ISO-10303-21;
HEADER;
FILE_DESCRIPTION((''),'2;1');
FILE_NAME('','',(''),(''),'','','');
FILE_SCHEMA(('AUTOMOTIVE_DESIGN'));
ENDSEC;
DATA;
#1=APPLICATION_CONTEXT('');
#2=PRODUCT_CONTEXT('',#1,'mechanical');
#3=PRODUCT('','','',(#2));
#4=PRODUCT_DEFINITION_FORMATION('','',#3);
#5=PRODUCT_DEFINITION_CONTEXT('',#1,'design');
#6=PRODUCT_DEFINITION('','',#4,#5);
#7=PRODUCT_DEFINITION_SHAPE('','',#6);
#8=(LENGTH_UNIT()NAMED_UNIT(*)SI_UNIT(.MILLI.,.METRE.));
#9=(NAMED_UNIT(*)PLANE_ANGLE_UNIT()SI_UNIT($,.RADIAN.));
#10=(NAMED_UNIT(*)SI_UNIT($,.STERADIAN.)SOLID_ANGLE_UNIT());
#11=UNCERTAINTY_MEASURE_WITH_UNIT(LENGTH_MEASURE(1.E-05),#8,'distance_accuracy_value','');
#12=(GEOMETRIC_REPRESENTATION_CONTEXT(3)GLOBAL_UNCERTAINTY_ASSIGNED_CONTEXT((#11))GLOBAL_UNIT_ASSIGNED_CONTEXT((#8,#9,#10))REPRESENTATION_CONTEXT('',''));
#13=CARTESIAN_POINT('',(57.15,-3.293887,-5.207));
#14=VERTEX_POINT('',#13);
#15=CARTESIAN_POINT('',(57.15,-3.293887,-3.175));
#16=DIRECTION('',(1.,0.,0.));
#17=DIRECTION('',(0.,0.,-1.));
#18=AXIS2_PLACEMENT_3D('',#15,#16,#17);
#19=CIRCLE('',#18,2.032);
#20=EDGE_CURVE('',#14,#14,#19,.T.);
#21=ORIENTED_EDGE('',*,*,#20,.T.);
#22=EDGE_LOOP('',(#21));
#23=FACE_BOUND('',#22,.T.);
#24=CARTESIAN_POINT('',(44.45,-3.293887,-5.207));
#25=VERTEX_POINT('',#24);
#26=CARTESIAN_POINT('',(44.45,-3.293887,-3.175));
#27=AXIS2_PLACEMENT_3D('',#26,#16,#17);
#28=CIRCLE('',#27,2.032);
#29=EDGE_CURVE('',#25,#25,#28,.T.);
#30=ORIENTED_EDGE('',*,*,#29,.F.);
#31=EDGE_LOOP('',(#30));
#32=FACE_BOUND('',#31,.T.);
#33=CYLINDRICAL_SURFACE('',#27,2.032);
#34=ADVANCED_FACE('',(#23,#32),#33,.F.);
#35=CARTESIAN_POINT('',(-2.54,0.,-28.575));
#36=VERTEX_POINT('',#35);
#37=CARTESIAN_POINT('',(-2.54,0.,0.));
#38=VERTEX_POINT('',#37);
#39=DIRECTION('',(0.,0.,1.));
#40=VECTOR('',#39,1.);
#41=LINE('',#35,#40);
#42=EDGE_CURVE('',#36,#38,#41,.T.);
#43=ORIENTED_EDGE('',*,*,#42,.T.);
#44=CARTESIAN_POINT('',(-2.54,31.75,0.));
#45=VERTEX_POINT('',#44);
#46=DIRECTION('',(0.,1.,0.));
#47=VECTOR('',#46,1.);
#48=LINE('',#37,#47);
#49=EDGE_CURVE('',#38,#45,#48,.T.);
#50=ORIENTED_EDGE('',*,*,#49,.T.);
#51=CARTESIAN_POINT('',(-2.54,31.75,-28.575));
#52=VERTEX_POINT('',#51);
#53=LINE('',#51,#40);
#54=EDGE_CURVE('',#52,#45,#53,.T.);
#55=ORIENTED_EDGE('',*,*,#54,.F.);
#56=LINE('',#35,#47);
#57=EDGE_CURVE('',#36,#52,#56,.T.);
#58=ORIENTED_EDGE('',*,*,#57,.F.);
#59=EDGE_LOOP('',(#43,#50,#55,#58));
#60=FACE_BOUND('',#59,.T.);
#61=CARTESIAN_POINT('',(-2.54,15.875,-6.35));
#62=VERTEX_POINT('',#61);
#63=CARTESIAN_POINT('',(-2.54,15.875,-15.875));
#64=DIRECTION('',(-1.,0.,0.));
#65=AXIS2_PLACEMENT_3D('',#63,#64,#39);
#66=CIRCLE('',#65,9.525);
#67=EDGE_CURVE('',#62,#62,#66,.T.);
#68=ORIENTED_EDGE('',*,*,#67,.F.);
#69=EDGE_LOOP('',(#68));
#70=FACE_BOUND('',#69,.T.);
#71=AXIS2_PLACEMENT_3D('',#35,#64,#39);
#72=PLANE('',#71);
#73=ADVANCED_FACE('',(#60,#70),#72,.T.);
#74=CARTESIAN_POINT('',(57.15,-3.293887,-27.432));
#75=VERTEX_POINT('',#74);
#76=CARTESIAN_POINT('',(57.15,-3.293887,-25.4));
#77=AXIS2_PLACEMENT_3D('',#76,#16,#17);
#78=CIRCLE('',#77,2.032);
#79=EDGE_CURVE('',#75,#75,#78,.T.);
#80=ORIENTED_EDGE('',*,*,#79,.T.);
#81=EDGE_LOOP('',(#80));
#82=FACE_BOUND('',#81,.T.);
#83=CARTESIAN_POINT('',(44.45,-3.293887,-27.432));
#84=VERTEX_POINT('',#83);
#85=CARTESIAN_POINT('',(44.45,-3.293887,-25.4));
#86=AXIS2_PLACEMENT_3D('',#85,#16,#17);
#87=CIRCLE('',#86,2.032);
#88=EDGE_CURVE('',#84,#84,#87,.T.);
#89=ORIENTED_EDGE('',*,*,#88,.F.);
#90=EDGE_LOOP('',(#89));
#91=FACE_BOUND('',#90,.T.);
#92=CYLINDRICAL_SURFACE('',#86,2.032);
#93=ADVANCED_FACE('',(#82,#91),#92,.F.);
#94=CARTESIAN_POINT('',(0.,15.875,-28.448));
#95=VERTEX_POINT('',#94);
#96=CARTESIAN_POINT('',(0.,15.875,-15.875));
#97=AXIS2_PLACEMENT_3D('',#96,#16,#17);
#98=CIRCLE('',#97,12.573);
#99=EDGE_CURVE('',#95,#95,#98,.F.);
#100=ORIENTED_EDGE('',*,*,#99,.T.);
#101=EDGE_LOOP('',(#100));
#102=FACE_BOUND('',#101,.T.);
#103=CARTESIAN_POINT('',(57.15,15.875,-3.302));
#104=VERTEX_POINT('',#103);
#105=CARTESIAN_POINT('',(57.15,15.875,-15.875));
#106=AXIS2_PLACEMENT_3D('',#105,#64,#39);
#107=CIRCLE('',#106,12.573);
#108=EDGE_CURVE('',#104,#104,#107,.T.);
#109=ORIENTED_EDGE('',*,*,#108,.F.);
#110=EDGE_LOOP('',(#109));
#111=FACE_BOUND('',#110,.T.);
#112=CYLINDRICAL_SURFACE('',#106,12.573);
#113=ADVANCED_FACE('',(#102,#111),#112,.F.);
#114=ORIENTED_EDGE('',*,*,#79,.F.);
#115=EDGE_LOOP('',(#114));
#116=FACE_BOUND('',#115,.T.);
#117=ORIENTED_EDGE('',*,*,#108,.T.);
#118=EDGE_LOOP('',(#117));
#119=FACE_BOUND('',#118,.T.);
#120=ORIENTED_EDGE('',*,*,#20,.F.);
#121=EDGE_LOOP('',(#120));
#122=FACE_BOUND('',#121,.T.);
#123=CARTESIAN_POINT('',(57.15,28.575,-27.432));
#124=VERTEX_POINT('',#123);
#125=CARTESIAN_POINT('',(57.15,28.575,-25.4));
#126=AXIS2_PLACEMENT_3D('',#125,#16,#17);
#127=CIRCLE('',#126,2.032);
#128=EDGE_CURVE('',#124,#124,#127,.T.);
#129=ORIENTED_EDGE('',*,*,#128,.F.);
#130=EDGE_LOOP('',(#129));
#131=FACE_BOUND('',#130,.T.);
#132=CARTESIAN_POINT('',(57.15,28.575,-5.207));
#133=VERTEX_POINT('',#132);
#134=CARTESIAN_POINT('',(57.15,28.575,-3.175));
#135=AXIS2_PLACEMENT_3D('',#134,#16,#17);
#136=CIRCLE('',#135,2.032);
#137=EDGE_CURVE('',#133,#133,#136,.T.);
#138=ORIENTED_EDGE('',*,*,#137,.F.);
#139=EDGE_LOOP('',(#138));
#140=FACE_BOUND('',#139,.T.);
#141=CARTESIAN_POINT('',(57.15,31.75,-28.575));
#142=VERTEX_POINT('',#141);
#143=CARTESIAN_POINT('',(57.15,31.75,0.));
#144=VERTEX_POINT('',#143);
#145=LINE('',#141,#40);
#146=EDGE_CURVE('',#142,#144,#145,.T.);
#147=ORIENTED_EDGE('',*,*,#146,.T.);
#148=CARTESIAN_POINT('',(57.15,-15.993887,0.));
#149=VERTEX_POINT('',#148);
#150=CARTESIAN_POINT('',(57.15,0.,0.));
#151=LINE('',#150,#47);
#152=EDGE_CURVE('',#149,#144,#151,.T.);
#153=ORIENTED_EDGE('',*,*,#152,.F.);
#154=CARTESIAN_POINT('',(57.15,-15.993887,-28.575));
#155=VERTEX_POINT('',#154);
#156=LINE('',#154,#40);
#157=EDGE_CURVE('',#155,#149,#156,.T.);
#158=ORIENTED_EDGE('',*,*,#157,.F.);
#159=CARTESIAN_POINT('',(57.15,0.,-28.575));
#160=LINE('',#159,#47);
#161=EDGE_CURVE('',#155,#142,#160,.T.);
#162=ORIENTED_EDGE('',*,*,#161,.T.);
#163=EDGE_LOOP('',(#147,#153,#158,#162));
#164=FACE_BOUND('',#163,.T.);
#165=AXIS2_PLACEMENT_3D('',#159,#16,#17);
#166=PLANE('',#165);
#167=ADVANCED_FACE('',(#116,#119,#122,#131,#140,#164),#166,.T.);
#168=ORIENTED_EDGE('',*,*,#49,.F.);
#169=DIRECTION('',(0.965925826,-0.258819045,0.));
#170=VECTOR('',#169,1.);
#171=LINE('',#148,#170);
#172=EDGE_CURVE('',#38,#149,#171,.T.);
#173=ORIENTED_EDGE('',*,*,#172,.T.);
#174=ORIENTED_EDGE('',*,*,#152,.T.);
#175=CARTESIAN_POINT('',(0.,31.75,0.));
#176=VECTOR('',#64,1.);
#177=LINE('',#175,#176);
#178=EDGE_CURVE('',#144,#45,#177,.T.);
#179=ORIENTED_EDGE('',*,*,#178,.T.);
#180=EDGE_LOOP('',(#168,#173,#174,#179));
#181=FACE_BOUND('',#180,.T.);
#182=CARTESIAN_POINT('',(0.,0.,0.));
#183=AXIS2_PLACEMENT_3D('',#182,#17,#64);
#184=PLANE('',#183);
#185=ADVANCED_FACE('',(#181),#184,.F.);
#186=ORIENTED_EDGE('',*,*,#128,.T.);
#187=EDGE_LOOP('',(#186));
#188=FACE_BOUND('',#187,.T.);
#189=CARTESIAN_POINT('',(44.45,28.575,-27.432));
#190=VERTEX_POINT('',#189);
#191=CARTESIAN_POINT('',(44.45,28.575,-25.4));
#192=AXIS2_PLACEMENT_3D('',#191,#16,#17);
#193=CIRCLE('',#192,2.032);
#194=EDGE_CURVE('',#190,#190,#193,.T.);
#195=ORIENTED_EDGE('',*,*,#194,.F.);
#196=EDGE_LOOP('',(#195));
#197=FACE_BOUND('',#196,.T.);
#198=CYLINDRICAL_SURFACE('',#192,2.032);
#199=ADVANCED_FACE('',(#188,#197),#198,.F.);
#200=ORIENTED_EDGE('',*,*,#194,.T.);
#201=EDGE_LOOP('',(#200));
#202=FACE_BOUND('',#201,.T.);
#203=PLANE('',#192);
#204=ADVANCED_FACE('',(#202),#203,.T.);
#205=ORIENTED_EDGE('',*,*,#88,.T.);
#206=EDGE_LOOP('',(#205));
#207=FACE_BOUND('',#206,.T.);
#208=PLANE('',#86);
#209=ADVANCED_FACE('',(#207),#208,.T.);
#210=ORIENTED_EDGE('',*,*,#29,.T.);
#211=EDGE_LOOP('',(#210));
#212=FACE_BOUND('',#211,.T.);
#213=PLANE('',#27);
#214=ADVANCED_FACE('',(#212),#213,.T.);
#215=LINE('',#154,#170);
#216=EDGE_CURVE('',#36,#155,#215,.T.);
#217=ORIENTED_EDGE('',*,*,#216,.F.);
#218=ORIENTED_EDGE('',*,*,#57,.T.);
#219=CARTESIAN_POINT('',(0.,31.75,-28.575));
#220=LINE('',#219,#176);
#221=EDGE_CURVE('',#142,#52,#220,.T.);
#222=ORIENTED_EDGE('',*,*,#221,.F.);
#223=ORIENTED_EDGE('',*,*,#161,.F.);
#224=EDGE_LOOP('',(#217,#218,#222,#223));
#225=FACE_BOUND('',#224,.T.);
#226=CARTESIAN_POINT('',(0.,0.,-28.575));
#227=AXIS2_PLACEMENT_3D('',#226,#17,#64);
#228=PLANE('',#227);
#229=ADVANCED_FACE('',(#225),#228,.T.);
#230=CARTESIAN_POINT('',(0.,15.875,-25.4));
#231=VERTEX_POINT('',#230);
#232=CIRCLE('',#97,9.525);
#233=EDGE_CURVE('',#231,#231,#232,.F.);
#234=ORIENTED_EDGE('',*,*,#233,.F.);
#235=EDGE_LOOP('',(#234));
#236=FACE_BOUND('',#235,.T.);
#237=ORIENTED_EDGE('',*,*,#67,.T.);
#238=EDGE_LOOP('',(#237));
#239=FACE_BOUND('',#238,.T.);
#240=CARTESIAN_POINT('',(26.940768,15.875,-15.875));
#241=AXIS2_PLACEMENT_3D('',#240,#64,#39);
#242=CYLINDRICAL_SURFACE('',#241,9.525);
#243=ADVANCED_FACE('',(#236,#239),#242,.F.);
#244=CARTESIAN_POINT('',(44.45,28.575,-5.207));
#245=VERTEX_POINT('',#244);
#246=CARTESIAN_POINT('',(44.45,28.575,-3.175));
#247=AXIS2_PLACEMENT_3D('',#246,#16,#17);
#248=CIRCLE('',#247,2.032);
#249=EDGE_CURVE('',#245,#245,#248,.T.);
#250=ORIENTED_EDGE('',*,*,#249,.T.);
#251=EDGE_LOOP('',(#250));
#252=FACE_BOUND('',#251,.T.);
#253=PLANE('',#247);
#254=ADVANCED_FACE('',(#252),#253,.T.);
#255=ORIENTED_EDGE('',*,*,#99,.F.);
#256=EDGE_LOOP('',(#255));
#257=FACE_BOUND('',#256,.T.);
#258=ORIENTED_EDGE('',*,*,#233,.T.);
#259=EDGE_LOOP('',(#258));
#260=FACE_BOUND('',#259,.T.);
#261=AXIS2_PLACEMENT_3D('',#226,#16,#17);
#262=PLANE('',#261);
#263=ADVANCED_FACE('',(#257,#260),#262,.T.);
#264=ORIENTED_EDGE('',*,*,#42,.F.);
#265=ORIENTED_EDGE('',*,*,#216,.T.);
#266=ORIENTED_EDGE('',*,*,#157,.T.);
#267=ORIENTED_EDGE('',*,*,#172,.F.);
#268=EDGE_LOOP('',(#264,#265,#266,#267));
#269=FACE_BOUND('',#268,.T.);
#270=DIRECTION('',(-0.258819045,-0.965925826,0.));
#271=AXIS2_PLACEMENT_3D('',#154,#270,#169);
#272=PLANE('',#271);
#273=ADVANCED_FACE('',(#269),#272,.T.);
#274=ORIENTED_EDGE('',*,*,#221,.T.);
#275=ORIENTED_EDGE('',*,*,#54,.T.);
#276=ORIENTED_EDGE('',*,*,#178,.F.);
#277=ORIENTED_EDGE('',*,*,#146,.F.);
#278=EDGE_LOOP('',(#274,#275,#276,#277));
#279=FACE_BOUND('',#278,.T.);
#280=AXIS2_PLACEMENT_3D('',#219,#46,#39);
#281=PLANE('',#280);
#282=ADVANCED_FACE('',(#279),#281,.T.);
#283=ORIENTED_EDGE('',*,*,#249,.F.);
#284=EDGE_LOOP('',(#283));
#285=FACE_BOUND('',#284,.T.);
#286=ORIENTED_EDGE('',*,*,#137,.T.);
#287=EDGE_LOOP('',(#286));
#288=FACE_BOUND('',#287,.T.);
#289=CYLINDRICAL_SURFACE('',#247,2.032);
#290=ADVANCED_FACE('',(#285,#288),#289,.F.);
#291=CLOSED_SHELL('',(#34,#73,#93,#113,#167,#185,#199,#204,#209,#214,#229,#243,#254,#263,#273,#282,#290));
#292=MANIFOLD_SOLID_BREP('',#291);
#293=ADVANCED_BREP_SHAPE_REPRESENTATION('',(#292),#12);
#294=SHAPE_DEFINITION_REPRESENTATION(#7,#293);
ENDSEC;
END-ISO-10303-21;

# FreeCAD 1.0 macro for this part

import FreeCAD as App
import Part
import Sketcher

V = App.Vector
Q = App.Units.Quantity


def add_polygon(sketch, points):
    """Adds a closed chain of lines whose ends are joined by coincident constraints."""
    first, n = sketch.GeometryCount, len(points)
    for a, b in zip(points, points[1:] + points[:1]):
        sketch.addGeometry(Part.LineSegment(App.Vector(*a, 0), App.Vector(*b, 0)), False)
    for i in range(n):
        sketch.addConstraint(Sketcher.Constraint("Coincident", first + i, 2, first + (i + 1) % n, 1))

doc = App.newDocument("Part")
body = doc.addObject("PartDesign::Body", "Body")

# Sketch on XY plane
sketch1 = doc.addObject("Sketcher::SketchObject", "Sketch")
body.addObject(sketch1)
sketch1.AttachmentSupport = (doc.XY_Plane, [""])
sketch1.MapMode = "FlatFace"
add_polygon(sketch1, [(0, 32), (0, 0), (57, 0), (57, 32)])  # lines 0-3
sketch1.addConstraint([
    Sketcher.Constraint("Vertical", 0),
    Sketcher.Constraint("Horizontal", 1),
    Sketcher.Constraint("Vertical", 2),
    Sketcher.Constraint("Horizontal", 3),
    Sketcher.Constraint("Coincident", 0, 2, -1, 1),
    Sketcher.Constraint("DistanceX", 1, 1, 1, 2, Q("2.25 in")),
    Sketcher.Constraint("DistanceY", 0, 2, 0, 1, Q("1.25 in")),
])
pad1 = doc.addObject("PartDesign::Pad", "Pad")
body.addObject(pad1)
pad1.Profile = sketch1
pad1.Length = Q("1.125 in")
pad1.Reversed = True

# Sketch on YZ plane
sketch2 = doc.addObject("Sketcher::SketchObject", "Sketch001")
body.addObject(sketch2)
sketch2.AttachmentSupport = (doc.YZ_Plane, [""])
sketch2.MapMode = "FlatFace"
sketch2.addGeometry(Part.Circle(V(16, -16, 0), V(0, 0, 1), 13), False)
sketch2.addConstraint([
    Sketcher.Constraint("Diameter", 0, Q("0.99 in")),
    Sketcher.Constraint("DistanceX", -1, 1, 0, 3, Q("0.625 in")),
    Sketcher.Constraint("DistanceY", 0, 3, -1, 1, Q("0.625 in")),
])
pocket1 = doc.addObject("PartDesign::Pocket", "Pocket")
body.addObject(pocket1)
pocket1.Profile = sketch2
pocket1.Type = "ThroughAll"
pocket1.Reversed = True

# Sketch on XZ plane
sketch3 = doc.addObject("Sketcher::SketchObject", "Sketch002")
body.addObject(sketch3)
sketch3.AttachmentSupport = (doc.XZ_Plane, [""])
sketch3.MapMode = "FlatFace"
sketch3.AttachmentOffset = App.Placement(V(0, 0, -1.25 * 25.4), App.Rotation())
add_polygon(sketch3, [(-2.5, -28.6), (-2.5, 0), (0, 0), (0, -28.6)])  # lines 0-3
sketch3.addConstraint([
    Sketcher.Constraint("Vertical", 0),
    Sketcher.Constraint("Horizontal", 1),
    Sketcher.Constraint("Vertical", 2),
    Sketcher.Constraint("Horizontal", 3),
    Sketcher.Constraint("Coincident", 1, 2, -1, 1),
    Sketcher.Constraint("DistanceX", 1, 1, 1, 2, Q("0.1 in")),
    Sketcher.Constraint("DistanceY", 0, 1, 0, 2, Q("1.125 in")),
])
pad2 = doc.addObject("PartDesign::Pad", "Pad001")
body.addObject(pad2)
pad2.Profile = sketch3
pad2.Length = Q("1.25 in")

# Sketch on YZ plane
sketch4 = doc.addObject("Sketcher::SketchObject", "Sketch003")
body.addObject(sketch4)
sketch4.AttachmentSupport = (doc.YZ_Plane, [""])
sketch4.MapMode = "FlatFace"
sketch4.AttachmentOffset = App.Placement(V(0, 0, -0.1 * 25.4), App.Rotation())
sketch4.addGeometry(Part.Circle(V(16, -16, 0), V(0, 0, 1), 10), False)
sketch4.addConstraint([
    Sketcher.Constraint("Diameter", 0, Q("0.75 in")),
    Sketcher.Constraint("DistanceX", -1, 1, 0, 3, Q("0.625 in")),
    Sketcher.Constraint("DistanceY", 0, 3, -1, 1, Q("0.625 in")),
])
pocket2 = doc.addObject("PartDesign::Pocket", "Pocket001")
body.addObject(pocket2)
pocket2.Profile = sketch4
pocket2.Length = Q("0.1 in")
pocket2.Reversed = True

# Sketch on XY plane
sketch5 = doc.addObject("Sketcher::SketchObject", "Sketch004")
body.addObject(sketch5)
sketch5.AttachmentSupport = (doc.XY_Plane, [""])
sketch5.MapMode = "FlatFace"
add_polygon(sketch5, [(57, 0), (-3, 0), (57, -16)])  # lines 0-2
sketch5.addConstraint([
    Sketcher.Constraint("Horizontal", 0),
    Sketcher.Constraint("Vertical", 2),
    Sketcher.Constraint("PointOnObject", 0, 2, -1),
    Sketcher.Constraint("Angle", 1, Q("-15 deg")),
    Sketcher.Constraint("DistanceX", 0, 2, 0, 1, Q("2.35 in")),
    Sketcher.Constraint("DistanceX", 0, 2, -1, 1, Q("0.1 in")),
])
pad3 = doc.addObject("PartDesign::Pad", "Pad002")
body.addObject(pad3)
pad3.Profile = sketch5
pad3.Length = Q("1.125 in")
pad3.Reversed = True

# Sketch on YZ plane
sketch6 = doc.addObject("Sketcher::SketchObject", "Sketch005")
body.addObject(sketch6)
sketch6.AttachmentSupport = (doc.YZ_Plane, [""])
sketch6.MapMode = "FlatFace"
sketch6.AttachmentOffset = App.Placement(V(0, 0, 2.25 * 25.4), App.Rotation())
sketch6.addGeometry([
    Part.Circle(V(28.6, -3.2, 0), V(0, 0, 1), 2),
    Part.Circle(V(28.6, -25.4, 0), V(0, 0, 1), 2),
    Part.Circle(V(-3.3, -25.4, 0), V(0, 0, 1), 2),
    Part.Circle(V(-3.3, -3.2, 0), V(0, 0, 1), 2),
], False)
sketch6.addConstraint([
    Sketcher.Constraint("Equal", 0, 1),
    Sketcher.Constraint("Equal", 1, 2),
    Sketcher.Constraint("Equal", 2, 3),
    Sketcher.Constraint("Horizontal", 1, 3, 2, 3),
    Sketcher.Constraint("Horizontal", 0, 3, 3, 3),
    Sketcher.Constraint("Vertical", 0, 3, 1, 3),
    Sketcher.Constraint("Vertical", 2, 3, 3, 3),
    Sketcher.Constraint("Diameter", 0, Q("0.16 in")),
    Sketcher.Constraint("DistanceY", 1, 3, -1, 1, Q("1 in")),
    Sketcher.Constraint("DistanceX", -1, 1, 0, 3, Q("1.125 in")),
    Sketcher.Constraint("DistanceY", 0, 3, -1, 1, Q("0.125 in")),
    Sketcher.Constraint("DistanceX", 2, 3, -1, 1, Q("3.293887 mm")),
])
pocket3 = doc.addObject("PartDesign::Pocket", "Pocket002")
body.addObject(pocket3)
pocket3.Profile = sketch6
pocket3.Length = Q("0.5 in")

doc.recompute()
